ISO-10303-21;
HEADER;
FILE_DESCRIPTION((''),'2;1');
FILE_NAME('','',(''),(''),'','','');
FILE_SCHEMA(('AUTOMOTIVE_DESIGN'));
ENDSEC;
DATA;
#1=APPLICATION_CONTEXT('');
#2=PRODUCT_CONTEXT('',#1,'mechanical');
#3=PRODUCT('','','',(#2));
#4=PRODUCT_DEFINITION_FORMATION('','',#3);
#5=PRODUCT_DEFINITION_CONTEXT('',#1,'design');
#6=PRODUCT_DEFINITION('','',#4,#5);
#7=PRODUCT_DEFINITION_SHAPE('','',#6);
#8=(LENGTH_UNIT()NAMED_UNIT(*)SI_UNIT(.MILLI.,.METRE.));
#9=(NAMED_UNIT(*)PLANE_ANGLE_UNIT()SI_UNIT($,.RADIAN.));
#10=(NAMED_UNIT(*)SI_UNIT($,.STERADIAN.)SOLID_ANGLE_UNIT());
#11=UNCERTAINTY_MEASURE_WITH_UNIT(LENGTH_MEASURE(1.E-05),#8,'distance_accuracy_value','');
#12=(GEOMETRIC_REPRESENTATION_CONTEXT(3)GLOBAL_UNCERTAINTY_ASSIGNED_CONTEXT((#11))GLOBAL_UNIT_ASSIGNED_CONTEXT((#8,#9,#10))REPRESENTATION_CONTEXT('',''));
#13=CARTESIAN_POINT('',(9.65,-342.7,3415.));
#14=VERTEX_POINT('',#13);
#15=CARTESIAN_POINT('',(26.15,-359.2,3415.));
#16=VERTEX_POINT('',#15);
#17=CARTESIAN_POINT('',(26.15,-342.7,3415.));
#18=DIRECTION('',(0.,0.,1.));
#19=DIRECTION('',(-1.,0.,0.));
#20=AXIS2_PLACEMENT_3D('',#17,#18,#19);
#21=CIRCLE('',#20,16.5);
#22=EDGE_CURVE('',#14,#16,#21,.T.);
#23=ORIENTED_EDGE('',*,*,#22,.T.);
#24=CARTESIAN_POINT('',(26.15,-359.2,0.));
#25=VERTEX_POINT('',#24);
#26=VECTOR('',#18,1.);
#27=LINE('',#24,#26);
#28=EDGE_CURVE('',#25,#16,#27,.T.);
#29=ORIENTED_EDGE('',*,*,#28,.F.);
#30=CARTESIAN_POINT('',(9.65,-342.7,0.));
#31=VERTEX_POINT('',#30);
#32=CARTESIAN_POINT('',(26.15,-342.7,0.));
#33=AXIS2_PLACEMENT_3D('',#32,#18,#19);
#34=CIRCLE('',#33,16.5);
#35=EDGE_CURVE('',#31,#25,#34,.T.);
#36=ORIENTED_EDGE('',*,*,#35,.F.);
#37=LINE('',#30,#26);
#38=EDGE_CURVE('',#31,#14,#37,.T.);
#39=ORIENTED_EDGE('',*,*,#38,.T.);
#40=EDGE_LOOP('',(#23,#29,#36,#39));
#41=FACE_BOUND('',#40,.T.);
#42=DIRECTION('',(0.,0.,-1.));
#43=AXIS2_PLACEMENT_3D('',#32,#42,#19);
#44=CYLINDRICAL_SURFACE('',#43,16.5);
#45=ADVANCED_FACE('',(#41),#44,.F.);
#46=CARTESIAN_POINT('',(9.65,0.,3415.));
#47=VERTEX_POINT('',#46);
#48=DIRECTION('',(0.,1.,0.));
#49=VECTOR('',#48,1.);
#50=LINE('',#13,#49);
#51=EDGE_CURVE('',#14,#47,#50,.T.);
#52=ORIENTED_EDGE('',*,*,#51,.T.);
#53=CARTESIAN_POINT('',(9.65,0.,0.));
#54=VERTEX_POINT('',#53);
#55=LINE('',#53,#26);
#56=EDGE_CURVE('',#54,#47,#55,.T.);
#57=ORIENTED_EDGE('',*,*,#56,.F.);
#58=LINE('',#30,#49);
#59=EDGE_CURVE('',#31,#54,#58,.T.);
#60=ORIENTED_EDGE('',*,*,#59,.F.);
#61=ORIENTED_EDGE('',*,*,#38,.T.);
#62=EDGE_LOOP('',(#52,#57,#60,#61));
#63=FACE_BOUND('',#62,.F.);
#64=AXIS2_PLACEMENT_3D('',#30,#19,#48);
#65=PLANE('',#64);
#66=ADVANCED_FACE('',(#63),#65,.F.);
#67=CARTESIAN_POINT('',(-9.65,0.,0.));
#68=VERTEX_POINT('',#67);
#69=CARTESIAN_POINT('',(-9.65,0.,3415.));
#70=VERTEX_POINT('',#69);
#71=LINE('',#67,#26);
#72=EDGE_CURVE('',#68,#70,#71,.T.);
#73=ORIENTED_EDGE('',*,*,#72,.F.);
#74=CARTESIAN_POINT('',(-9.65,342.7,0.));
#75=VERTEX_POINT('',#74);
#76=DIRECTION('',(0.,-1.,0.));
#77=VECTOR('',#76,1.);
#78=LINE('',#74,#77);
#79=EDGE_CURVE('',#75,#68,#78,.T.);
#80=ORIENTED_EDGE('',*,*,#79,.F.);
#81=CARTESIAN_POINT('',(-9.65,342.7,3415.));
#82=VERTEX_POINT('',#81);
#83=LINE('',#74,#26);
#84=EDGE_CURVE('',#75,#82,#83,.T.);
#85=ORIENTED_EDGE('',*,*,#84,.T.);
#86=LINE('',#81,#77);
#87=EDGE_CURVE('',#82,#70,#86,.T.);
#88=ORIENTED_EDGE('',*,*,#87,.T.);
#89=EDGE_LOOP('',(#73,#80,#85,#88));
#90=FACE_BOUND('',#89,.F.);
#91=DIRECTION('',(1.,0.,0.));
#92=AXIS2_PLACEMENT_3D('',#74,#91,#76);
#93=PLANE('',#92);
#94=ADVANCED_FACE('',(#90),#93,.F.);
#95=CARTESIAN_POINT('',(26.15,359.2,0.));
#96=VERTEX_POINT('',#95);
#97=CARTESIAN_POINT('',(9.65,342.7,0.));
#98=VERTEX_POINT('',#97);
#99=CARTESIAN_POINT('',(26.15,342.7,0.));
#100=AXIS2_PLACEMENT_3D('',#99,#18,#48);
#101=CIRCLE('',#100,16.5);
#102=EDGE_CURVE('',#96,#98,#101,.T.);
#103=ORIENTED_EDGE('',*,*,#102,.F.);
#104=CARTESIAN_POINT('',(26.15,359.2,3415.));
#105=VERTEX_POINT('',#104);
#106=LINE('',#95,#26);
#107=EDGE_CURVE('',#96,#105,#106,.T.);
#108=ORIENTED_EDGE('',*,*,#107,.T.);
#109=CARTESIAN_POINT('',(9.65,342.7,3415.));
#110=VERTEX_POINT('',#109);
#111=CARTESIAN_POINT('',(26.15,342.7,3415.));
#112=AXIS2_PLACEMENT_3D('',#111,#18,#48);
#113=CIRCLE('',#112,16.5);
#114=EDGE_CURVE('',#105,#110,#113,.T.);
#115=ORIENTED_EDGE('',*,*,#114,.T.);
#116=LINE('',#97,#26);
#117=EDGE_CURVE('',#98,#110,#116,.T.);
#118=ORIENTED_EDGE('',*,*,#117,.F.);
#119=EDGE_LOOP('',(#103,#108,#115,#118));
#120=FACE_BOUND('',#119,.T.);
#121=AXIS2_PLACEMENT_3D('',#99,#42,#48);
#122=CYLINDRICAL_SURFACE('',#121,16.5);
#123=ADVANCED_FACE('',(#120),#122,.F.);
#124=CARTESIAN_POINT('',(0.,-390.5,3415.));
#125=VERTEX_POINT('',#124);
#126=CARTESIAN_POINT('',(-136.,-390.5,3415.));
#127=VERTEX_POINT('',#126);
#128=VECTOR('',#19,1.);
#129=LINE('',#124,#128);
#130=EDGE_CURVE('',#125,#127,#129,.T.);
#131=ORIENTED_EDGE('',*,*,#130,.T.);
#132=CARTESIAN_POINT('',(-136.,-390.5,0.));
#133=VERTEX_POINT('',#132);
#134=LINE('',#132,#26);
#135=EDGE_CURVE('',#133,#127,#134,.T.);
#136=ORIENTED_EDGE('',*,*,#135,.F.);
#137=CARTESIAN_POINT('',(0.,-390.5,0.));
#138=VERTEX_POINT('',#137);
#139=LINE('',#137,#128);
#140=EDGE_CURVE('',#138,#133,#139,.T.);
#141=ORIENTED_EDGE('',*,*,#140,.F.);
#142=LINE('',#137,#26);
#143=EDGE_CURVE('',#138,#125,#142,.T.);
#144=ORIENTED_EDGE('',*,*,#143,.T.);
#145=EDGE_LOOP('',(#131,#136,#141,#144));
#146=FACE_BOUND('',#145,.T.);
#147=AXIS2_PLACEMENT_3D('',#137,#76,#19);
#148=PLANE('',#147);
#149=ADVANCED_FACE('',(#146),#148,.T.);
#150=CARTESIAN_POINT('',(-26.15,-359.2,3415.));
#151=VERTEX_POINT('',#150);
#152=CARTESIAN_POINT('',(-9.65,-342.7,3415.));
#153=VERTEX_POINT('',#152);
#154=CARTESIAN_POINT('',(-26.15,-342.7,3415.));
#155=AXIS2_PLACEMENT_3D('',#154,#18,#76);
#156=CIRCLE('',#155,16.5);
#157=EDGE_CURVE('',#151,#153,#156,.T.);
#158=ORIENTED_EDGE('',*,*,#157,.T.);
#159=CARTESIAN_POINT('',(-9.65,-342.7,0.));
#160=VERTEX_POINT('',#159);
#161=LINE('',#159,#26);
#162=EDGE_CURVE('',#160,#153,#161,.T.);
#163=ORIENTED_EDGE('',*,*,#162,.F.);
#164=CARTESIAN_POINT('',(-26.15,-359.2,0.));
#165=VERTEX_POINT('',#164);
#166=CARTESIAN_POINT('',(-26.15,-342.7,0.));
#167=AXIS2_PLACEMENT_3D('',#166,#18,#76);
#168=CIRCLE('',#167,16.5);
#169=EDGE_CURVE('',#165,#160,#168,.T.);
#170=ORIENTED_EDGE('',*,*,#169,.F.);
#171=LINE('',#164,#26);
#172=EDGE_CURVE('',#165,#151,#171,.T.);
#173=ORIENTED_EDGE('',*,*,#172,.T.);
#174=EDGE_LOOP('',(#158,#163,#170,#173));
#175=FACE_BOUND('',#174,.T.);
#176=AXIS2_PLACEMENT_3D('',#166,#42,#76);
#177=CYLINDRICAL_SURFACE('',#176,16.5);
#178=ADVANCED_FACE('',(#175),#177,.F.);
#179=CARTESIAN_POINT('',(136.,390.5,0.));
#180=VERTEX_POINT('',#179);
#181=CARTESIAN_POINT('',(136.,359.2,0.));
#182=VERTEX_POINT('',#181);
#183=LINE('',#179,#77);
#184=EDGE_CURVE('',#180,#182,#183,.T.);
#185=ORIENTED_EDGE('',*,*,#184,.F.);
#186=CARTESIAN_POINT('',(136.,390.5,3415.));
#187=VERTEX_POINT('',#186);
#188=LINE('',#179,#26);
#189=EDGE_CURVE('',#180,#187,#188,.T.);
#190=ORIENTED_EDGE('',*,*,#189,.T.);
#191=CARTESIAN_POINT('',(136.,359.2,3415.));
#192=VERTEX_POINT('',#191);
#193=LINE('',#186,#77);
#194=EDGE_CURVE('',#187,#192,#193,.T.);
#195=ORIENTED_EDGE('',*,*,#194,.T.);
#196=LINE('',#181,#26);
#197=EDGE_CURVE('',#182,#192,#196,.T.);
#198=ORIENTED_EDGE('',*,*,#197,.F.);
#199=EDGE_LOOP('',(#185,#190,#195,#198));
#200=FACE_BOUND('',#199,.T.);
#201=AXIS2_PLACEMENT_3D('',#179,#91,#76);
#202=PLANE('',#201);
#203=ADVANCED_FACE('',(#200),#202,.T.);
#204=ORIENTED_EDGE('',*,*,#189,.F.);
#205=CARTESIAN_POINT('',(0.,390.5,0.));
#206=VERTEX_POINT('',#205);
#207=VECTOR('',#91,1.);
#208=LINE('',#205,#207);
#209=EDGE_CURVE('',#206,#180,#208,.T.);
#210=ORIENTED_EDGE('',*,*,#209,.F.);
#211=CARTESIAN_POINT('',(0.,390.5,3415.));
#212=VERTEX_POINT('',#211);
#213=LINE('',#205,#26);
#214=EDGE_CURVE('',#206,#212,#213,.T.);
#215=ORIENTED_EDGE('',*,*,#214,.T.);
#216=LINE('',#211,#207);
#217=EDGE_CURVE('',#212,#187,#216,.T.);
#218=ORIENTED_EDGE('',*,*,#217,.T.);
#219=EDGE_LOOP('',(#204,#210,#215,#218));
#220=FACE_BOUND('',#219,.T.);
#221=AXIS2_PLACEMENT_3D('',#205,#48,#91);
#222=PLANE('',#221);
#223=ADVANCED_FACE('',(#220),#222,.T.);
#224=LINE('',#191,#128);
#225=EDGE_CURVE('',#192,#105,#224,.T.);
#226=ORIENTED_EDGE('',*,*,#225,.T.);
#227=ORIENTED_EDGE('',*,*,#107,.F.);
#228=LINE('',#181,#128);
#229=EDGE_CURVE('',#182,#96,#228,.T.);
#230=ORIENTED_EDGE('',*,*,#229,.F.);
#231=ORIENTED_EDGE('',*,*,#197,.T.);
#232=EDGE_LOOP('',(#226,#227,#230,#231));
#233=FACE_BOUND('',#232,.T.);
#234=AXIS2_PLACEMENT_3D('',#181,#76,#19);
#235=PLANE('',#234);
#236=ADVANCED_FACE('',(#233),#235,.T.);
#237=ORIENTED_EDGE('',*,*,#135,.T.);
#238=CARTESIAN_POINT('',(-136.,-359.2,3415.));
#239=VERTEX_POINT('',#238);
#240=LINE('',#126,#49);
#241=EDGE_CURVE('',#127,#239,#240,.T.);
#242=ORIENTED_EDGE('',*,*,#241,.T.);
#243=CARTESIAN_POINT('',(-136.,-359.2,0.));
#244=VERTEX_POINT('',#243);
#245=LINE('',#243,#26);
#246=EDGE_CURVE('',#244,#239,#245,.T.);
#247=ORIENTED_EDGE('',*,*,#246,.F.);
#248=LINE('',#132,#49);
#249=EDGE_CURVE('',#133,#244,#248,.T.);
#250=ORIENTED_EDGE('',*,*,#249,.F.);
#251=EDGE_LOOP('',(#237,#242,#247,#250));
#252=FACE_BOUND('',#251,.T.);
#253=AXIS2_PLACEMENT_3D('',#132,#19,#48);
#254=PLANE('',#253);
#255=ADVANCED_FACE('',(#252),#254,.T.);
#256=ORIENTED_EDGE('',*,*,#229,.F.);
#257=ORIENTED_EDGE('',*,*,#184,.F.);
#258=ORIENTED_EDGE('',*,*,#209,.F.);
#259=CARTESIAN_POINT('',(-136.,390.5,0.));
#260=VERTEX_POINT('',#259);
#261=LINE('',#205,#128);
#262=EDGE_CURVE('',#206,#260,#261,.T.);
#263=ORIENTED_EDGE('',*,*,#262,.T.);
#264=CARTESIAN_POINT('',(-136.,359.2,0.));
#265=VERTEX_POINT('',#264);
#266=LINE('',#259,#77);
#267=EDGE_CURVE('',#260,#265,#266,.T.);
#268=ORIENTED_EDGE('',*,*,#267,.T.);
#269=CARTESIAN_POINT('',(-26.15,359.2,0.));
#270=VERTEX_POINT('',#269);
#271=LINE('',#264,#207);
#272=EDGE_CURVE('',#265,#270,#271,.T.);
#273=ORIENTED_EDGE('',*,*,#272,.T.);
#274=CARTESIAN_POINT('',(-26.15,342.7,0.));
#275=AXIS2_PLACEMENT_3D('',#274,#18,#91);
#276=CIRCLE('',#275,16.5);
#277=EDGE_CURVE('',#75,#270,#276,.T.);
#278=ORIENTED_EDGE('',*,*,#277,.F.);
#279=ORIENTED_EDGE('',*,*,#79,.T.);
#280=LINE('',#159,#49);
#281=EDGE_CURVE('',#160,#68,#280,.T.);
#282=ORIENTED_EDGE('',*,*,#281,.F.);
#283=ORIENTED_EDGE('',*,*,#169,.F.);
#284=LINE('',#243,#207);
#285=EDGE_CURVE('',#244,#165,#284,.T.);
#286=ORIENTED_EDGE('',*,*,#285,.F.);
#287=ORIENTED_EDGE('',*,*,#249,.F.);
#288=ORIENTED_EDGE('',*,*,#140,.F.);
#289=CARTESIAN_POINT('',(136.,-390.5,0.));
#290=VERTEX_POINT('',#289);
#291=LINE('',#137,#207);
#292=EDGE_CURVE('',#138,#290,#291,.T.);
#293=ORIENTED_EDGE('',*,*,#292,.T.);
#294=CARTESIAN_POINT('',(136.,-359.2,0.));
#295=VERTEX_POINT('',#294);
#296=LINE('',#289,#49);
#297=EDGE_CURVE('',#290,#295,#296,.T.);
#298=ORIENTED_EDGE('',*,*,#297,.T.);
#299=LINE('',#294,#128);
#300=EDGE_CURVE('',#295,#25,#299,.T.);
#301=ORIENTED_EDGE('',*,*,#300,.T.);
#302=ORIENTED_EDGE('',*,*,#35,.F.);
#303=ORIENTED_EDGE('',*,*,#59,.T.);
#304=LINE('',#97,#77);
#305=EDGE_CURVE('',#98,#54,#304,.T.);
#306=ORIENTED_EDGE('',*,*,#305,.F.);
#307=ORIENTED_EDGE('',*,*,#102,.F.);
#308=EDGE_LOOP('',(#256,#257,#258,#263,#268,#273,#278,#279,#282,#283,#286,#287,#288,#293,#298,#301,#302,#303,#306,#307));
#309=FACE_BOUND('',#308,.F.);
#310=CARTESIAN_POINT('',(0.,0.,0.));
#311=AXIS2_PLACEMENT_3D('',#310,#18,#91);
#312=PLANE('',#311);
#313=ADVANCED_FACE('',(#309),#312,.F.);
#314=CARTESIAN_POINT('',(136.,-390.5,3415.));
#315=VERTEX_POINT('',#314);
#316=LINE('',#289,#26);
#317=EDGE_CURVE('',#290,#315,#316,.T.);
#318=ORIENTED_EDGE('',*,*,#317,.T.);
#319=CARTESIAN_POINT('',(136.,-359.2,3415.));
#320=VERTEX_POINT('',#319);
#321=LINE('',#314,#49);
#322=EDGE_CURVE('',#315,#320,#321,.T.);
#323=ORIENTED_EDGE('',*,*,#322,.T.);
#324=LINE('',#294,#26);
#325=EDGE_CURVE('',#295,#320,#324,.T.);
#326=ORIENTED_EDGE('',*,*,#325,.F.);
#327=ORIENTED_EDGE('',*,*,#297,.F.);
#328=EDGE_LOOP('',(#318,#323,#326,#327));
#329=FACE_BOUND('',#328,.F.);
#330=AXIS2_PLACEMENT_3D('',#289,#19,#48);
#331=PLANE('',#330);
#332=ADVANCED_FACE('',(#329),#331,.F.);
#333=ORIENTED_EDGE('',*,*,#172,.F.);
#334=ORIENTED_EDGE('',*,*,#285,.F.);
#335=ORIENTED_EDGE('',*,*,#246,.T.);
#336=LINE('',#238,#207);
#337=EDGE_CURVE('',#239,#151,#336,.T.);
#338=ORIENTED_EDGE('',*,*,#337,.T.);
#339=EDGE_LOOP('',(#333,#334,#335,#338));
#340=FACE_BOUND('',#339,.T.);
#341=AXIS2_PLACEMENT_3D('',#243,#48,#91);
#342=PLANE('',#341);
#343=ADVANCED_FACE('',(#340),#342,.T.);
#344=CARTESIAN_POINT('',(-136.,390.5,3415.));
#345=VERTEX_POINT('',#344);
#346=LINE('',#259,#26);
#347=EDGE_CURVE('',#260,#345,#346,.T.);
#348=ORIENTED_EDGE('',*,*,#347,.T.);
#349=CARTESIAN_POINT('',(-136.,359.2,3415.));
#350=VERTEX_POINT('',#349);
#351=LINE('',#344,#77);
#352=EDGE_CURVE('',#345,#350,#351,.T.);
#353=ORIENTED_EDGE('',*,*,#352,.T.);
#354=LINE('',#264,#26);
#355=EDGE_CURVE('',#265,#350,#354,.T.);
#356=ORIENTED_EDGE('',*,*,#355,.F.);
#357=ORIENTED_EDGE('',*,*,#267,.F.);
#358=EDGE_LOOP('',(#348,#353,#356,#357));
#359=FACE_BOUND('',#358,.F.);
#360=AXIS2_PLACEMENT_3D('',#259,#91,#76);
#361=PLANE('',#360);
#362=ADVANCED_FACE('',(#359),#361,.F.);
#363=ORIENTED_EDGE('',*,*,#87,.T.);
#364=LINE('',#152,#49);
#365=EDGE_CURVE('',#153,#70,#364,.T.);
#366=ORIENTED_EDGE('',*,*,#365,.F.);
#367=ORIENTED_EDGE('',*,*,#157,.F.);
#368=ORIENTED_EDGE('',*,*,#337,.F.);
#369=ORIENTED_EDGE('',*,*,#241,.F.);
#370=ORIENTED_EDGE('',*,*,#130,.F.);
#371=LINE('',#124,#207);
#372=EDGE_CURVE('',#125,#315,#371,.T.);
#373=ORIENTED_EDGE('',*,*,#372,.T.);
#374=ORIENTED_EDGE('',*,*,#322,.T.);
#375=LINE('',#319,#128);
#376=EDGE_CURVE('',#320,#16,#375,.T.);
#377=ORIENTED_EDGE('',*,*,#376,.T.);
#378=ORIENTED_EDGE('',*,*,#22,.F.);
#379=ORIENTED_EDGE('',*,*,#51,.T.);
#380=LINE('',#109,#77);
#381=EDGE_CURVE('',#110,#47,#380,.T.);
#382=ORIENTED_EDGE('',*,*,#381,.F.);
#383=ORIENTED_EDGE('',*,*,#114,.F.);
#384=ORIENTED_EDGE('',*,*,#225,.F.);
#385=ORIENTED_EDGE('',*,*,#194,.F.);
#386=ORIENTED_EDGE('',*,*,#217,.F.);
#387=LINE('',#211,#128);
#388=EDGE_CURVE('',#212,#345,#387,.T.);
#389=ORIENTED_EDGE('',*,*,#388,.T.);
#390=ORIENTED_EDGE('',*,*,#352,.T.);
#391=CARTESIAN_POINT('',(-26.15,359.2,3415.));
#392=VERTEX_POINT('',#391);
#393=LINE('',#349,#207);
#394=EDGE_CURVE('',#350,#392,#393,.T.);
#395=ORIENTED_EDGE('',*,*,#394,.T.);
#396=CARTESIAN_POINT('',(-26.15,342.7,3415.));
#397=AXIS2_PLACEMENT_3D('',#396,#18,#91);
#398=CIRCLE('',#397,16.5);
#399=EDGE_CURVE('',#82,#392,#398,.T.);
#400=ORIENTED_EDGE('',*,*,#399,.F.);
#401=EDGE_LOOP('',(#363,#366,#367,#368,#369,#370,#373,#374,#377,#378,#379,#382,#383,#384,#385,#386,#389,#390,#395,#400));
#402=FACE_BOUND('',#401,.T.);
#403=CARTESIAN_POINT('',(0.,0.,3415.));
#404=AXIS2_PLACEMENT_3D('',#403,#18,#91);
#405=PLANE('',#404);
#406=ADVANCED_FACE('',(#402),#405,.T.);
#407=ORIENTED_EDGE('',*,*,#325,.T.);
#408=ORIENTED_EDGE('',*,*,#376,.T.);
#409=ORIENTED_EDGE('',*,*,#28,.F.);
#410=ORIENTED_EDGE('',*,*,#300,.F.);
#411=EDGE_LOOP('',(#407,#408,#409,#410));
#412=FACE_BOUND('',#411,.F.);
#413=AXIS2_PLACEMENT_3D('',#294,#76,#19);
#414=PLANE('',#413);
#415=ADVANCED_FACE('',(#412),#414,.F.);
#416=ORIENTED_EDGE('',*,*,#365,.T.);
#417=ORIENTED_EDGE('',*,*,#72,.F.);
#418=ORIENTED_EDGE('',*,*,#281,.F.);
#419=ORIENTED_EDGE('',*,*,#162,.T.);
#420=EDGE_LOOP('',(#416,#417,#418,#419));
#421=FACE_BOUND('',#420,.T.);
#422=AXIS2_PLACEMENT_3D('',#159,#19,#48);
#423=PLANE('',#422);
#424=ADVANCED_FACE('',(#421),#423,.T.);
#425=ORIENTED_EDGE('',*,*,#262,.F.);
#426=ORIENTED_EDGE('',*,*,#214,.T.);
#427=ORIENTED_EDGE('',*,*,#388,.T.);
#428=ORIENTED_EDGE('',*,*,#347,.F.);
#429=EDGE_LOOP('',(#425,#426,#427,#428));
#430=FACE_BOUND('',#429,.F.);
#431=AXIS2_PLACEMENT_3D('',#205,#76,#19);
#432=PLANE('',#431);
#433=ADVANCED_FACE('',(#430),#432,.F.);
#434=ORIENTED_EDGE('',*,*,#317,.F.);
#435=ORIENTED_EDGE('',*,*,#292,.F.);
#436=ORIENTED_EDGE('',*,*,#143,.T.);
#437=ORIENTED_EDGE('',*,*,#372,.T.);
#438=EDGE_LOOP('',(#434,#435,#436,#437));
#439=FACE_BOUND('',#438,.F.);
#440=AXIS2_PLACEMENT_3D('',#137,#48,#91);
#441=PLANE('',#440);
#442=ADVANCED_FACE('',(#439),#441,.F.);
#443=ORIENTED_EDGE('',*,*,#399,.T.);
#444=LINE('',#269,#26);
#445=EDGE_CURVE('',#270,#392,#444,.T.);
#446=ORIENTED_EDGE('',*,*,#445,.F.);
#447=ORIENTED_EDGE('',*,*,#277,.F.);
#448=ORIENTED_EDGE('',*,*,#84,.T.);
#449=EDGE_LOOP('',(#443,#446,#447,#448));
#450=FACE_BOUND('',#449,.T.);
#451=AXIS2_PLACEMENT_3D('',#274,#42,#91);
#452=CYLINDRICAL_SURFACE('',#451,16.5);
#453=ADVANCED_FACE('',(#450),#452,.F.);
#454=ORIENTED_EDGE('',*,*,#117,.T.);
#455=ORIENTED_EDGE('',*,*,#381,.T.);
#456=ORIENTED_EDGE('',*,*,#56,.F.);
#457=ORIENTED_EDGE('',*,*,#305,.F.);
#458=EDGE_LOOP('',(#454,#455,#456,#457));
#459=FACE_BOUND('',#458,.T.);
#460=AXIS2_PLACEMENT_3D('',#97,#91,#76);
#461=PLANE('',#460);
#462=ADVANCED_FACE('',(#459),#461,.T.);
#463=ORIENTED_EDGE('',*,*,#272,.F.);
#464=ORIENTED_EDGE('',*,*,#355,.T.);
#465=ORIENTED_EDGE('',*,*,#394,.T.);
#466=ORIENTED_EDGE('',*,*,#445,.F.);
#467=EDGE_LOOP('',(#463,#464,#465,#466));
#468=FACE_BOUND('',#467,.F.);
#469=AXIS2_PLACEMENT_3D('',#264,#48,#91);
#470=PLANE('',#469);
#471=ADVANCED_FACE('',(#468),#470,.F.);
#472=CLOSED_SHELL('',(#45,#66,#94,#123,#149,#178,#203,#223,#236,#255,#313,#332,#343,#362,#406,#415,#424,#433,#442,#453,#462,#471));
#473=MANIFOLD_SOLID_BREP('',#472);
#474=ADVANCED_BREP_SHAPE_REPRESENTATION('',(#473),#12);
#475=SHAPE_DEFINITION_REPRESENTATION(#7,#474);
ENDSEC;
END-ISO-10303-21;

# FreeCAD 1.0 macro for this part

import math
import FreeCAD as App
import Part
import Sketcher
Q = App.Units.Quantity

doc = App.newDocument("Part")
body = doc.addObject("PartDesign::Body", "Body")

sketch1 = doc.addObject("Sketcher::SketchObject", "Sketch")
body.addObject(sketch1)
sketch1.AttachmentSupport = (doc.XY_Plane, [""])
sketch1.MapMode = "FlatFace"
sketch1.addGeometry([
    Part.LineSegment(App.Vector(-136, -359, 0), App.Vector(-136, -390, 0)),
    Part.LineSegment(App.Vector(-136, -390, 0), App.Vector(136, -390, 0)),
    Part.LineSegment(App.Vector(136, -390, 0), App.Vector(136, -359, 0)),
    Part.LineSegment(App.Vector(136, -359, 0), App.Vector(26, -359, 0)),
    Part.ArcOfCircle(Part.Circle(App.Vector(26, -343, 0), App.Vector(0, 0, 1), 16), math.radians(180), math.radians(270)),
    Part.LineSegment(App.Vector(10, -343, 0), App.Vector(10, 343, 0)),
    Part.ArcOfCircle(Part.Circle(App.Vector(26, 343, 0), App.Vector(0, 0, 1), 16), math.radians(90), math.radians(180)),
    Part.LineSegment(App.Vector(26, 359, 0), App.Vector(136, 359, 0)),
    Part.LineSegment(App.Vector(136, 359, 0), App.Vector(136, 390, 0)),
    Part.LineSegment(App.Vector(136, 390, 0), App.Vector(-136, 390, 0)),
    Part.LineSegment(App.Vector(-136, 390, 0), App.Vector(-136, 359, 0)),
    Part.LineSegment(App.Vector(-136, 359, 0), App.Vector(-26, 359, 0)),
    Part.ArcOfCircle(Part.Circle(App.Vector(-26, 343, 0), App.Vector(0, 0, 1), 16), math.radians(0), math.radians(90)),
    Part.LineSegment(App.Vector(-10, 343, 0), App.Vector(-10, -343, 0)),
    Part.ArcOfCircle(Part.Circle(App.Vector(-26, -343, 0), App.Vector(0, 0, 1), 16), math.radians(-90), math.radians(0)),
    Part.LineSegment(App.Vector(-26, -359, 0), App.Vector(-136, -359, 0)),
], False)
sketch1.addConstraint([
    Sketcher.Constraint("Coincident", 0, 2, 1, 1),
    Sketcher.Constraint("Coincident", 1, 2, 2, 1),
    Sketcher.Constraint("Coincident", 2, 2, 3, 1),
    Sketcher.Constraint("Tangent", 3, 2, 4, 2),
    Sketcher.Constraint("Tangent", 4, 1, 5, 1),
    Sketcher.Constraint("Tangent", 5, 2, 6, 2),
    Sketcher.Constraint("Tangent", 6, 1, 7, 1),
    Sketcher.Constraint("Coincident", 7, 2, 8, 1),
    Sketcher.Constraint("Coincident", 8, 2, 9, 1),
    Sketcher.Constraint("Coincident", 9, 2, 10, 1),
    Sketcher.Constraint("Coincident", 10, 2, 11, 1),
    Sketcher.Constraint("Tangent", 11, 2, 12, 2),
    Sketcher.Constraint("Tangent", 12, 1, 13, 1),
    Sketcher.Constraint("Tangent", 13, 2, 14, 2),
    Sketcher.Constraint("Tangent", 14, 1, 15, 1),
    Sketcher.Constraint("Coincident", 15, 2, 0, 1),
    Sketcher.Constraint("Vertical", 0),
    Sketcher.Constraint("Horizontal", 1),
    Sketcher.Constraint("Vertical", 2),
    Sketcher.Constraint("Horizontal", 3),
    Sketcher.Constraint("Vertical", 5),
    Sketcher.Constraint("Horizontal", 7),
    Sketcher.Constraint("Vertical", 8),
    Sketcher.Constraint("Horizontal", 9),
    Sketcher.Constraint("Vertical", 10),
    Sketcher.Constraint("Horizontal", 11),
    Sketcher.Constraint("Vertical", 13),
    Sketcher.Constraint("Horizontal", 15),
    Sketcher.Constraint("Equal", 4, 6),
    Sketcher.Constraint("Equal", 6, 12),
    Sketcher.Constraint("Equal", 12, 14),
    Sketcher.Constraint("Symmetric", 4, 3, 12, 3, -1, 1),
    Sketcher.Constraint("Symmetric", 0, 2, 8, 2, -1, 1),
    Sketcher.Constraint("Symmetric", 7, 2, 10, 2, -2),
    Sketcher.Constraint("Symmetric", 2, 2, 15, 2, -2),
    Sketcher.Constraint("Radius", 4, Q("16.5 mm")),
    Sketcher.Constraint("DistanceY", 0, 2, 0, 1, Q("31.3 mm")),
    Sketcher.Constraint("DistanceX", 0, 2, -1, 1, Q("136 mm")),
    Sketcher.Constraint("DistanceY", 0, 2, -1, 1, Q("390.5 mm")),
    Sketcher.Constraint("DistanceX", -1, 1, 4, 1, Q("9.65 mm")),
])
pad1 = doc.addObject("PartDesign::Pad", "Pad")
body.addObject(pad1)
pad1.Profile = sketch1
pad1.Length = 3415

doc.recompute()
